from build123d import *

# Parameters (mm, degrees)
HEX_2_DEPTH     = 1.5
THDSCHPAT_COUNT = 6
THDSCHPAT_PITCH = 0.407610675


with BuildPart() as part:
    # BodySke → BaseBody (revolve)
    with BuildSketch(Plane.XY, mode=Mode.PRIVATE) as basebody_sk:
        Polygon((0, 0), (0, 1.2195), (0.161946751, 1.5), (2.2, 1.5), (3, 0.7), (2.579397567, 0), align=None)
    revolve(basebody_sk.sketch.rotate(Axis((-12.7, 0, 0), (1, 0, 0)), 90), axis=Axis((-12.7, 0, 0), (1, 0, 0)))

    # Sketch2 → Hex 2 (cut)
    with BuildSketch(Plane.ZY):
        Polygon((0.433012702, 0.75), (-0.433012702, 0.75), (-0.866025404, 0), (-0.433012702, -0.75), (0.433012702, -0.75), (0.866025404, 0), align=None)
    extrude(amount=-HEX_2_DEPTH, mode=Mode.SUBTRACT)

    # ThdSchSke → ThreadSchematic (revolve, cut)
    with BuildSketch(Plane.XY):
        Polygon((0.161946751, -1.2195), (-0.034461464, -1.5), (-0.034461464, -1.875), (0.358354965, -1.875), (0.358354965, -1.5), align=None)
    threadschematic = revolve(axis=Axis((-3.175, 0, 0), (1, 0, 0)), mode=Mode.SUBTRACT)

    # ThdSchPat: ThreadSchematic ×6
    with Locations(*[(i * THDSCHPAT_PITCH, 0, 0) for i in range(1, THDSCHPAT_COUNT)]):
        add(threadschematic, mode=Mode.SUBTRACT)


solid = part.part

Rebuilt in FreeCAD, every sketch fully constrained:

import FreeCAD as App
import Part
import Sketcher

V = App.Vector
Q = App.Units.Quantity


def add_polygon(sketch, points):
    """Adds a closed chain of lines whose ends are joined by coincident constraints."""
    first, n = sketch.GeometryCount, len(points)
    for a, b in zip(points, points[1:] + points[:1]):
        sketch.addGeometry(Part.LineSegment(App.Vector(*a, 0), App.Vector(*b, 0)), False)
    for i in range(n):
        sketch.addConstraint(Sketcher.Constraint("Coincident", first + i, 2, first + (i + 1) % n, 1))

doc = App.newDocument("Part")
body = doc.addObject("PartDesign::Body", "Body")

# Sketch on XY plane
sketch1 = body.newObject("Sketcher::SketchObject", "Sketch")
sketch1.AttachmentSupport = (doc.getObject("XY_Plane"), [""])
sketch1.MapMode = "FlatFace"
add_polygon(sketch1, [(0, 1.22), (0, 0), (2.58, 0), (3, 0.7), (2.2, 1.5), (0.16, 1.5)])  # lines 0-5
sketch1.addConstraint(Sketcher.Constraint("Vertical", 0))
sketch1.addConstraint(Sketcher.Constraint("Horizontal", 1))
sketch1.addConstraint(Sketcher.Constraint("Horizontal", 4))
sketch1.addConstraint(Sketcher.Constraint("Coincident", 0, 2, -1, 1))
sketch1.addConstraint(Sketcher.Constraint("Angle", 2, Q("59 deg")))
sketch1.addConstraint(Sketcher.Constraint("Angle", 3, Q("135 deg")))
sketch1.addConstraint(Sketcher.Constraint("Angle", 5, Q("-120 deg")))
sketch1.addConstraint(Sketcher.Constraint("DistanceX", -1, 1, 2, 2, Q("3 mm")))
sketch1.addConstraint(Sketcher.Constraint("DistanceY", -1, 1, 2, 2, Q("0.7 mm")))
sketch1.addConstraint(Sketcher.Constraint("DistanceX", -1, 1, 3, 2, Q("2.2 mm")))
sketch1.addConstraint(Sketcher.Constraint("DistanceY", 0, 2, 0, 1, Q("1.2195 mm")))
revolution = body.newObject("PartDesign::Revolution", "Revolution")
revolution.Profile = sketch1
revolution.ReferenceAxis = (sketch1, ["H_Axis"])
revolution.Angle = 360

# Sketch on YZ plane
sketch2 = body.newObject("Sketcher::SketchObject", "Sketch001")
sketch2.AttachmentSupport = (doc.getObject("YZ_Plane"), [""])
sketch2.MapMode = "FlatFace"
add_polygon(sketch2, [(0.8, 0.4), (0.8, -0.4), (0, -0.9), (-0.8, -0.4), (-0.8, 0.4), (0, 0.9)])  # lines 0-5
sketch2.addConstraint(Sketcher.Constraint("Vertical", 0))
sketch2.addConstraint(Sketcher.Constraint("Vertical", 3))
sketch2.addConstraint(Sketcher.Constraint("Symmetric", 0, 2, 3, 2, -1, 1))
sketch2.addConstraint(Sketcher.Constraint("Symmetric", 1, 2, 4, 2, -1, 1))
sketch2.addConstraint(Sketcher.Constraint("PointOnObject", 1, 2, -2))
sketch2.addConstraint(Sketcher.Constraint("Parallel", 2, 5))
sketch2.addConstraint(Sketcher.Constraint("Horizontal", 0, 2, 2, 2))
sketch2.addConstraint(Sketcher.Constraint("Angle", 1, Q("-150 deg")))
sketch2.addConstraint(Sketcher.Constraint("DistanceX", 2, 2, 0, 2, Q("1.5 mm")))
sketch2.addConstraint(Sketcher.Constraint("DistanceY", 0, 2, 0, 1, Q("0.866025 mm")))
pocket1 = body.newObject("PartDesign::Pocket", "Pocket")
pocket1.Profile = sketch2
pocket1.Length = 1.5
pocket1.Reversed = True

# Sketch on XY plane
sketch3 = body.newObject("Sketcher::SketchObject", "Sketch002")
sketch3.AttachmentSupport = (doc.getObject("XY_Plane"), [""])
sketch3.MapMode = "FlatFace"
add_polygon(sketch3, [(0.16, -1.22), (-0.03, -1.5), (-0.03, -1.88), (0.36, -1.88), (0.36, -1.5)])  # lines 0-4
sketch3.addConstraint(Sketcher.Constraint("Vertical", 1))
sketch3.addConstraint(Sketcher.Constraint("Horizontal", 2))
sketch3.addConstraint(Sketcher.Constraint("Vertical", 3))
sketch3.addConstraint(Sketcher.Constraint("Horizontal", 0, 2, 3, 2))
sketch3.addConstraint(Sketcher.Constraint("Equal", 0, 4))
sketch3.addConstraint(Sketcher.Constraint("Angle", 0, Q("-125 deg")))
sketch3.addConstraint(Sketcher.Constraint("DistanceY", 0, 2, -1, 1, Q("1.5 mm")))
sketch3.addConstraint(Sketcher.Constraint("DistanceY", 1, 2, 1, 1, Q("0.375 mm")))
sketch3.addConstraint(Sketcher.Constraint("DistanceY", 4, 2, -1, 1, Q("1.2195 mm")))
sketch3.addConstraint(Sketcher.Constraint("DistanceX", 0, 2, -1, 1, Q("0.034461 mm")))
groove = body.newObject("PartDesign::Groove", "Groove")
groove.Profile = sketch3
groove.ReferenceAxis = (sketch3, ["H_Axis"])
groove.Angle = 360
doc.recompute()

linearpattern = body.newObject("PartDesign::LinearPattern", "LinearPattern")
linearpattern.Originals = [groove]
linearpattern.Direction = (doc.getObject("X_Axis"), [""])
linearpattern.Mode = "offset"
linearpattern.Offset = 0.407611
linearpattern.Occurrences = 6
body.Tip = linearpattern

doc.recompute()
